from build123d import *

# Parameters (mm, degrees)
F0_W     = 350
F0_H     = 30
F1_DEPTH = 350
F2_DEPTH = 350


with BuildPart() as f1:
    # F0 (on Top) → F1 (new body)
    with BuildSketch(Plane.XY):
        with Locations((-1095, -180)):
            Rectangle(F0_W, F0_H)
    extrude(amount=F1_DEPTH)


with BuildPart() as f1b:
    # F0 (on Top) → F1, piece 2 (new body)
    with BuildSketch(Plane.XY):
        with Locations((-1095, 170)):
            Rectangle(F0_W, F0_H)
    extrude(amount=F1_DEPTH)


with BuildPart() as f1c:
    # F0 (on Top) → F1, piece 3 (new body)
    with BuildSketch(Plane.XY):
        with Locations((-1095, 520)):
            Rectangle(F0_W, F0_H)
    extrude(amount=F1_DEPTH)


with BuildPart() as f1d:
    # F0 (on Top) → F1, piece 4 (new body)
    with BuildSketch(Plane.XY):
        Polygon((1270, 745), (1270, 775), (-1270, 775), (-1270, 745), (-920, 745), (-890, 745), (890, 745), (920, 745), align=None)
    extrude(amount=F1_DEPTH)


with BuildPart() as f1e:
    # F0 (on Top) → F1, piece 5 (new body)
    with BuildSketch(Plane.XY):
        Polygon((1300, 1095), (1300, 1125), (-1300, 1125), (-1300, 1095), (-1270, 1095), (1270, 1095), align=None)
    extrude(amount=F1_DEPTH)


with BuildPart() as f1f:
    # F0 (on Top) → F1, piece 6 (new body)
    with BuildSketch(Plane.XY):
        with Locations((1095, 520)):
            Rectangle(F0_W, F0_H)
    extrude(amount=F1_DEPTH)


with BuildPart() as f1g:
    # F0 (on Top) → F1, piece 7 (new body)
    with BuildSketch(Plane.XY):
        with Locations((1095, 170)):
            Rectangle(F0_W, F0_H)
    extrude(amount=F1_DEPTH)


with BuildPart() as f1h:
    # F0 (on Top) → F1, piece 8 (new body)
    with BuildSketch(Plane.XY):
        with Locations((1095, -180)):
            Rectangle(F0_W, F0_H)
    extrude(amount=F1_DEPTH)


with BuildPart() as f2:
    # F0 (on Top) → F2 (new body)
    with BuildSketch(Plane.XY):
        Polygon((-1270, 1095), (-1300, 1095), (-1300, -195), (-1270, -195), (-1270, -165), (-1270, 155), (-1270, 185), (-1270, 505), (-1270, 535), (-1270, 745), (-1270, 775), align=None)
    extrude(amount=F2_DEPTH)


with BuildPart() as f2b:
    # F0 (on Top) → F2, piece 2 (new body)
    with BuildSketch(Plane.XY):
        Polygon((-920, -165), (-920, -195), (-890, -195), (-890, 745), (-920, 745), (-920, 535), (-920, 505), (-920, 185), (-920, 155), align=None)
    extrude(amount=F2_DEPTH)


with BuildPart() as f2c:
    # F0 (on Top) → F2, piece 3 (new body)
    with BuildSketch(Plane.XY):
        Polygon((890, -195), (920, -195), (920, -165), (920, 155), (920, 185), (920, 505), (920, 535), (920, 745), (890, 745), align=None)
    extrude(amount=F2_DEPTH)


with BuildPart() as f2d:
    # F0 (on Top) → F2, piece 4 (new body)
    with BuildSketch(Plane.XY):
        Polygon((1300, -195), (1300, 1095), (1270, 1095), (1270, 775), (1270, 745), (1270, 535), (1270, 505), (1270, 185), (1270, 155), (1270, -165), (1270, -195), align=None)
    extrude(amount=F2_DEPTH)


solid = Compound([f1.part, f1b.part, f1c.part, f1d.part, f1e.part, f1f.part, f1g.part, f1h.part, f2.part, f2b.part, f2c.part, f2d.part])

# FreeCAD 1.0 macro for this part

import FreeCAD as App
import Part
import Sketcher

doc = App.newDocument("Part")
body = doc.addObject("PartDesign::Body", "Body")

sketch1 = body.newObject("Sketcher::SketchObject", "Sketch")
sketch1.AttachmentSupport = (doc.getObject("XY_Plane"), [""])
sketch1.MapMode = "FlatFace"
sketch1.addGeometry([
    Part.LineSegment(App.Vector(-1270, -165, 0), App.Vector(-1270, -195, 0)),
    Part.LineSegment(App.Vector(-1270, -195, 0), App.Vector(-920, -195, 0)),
    Part.LineSegment(App.Vector(-920, -195, 0), App.Vector(-920, -165, 0)),
    Part.LineSegment(App.Vector(-920, -165, 0), App.Vector(-1270, -165, 0)),
], False)
sketch1.addConstraint([
    Sketcher.Constraint("Coincident", 0, 2, 1, 1),
    Sketcher.Constraint("Coincident", 1, 2, 2, 1),
    Sketcher.Constraint("Coincident", 2, 2, 3, 1),
    Sketcher.Constraint("Coincident", 3, 2, 0, 1),
    Sketcher.Constraint("Vertical", 0),
    Sketcher.Constraint("Horizontal", 1),
    Sketcher.Constraint("Vertical", 2),
    Sketcher.Constraint("Horizontal", 3),
    Sketcher.Constraint("DistanceX", 1, 1, 1, 2, 350.0),
    Sketcher.Constraint("DistanceY", 0, 2, 0, 1, 30.0),
    Sketcher.Constraint("DistanceX", 0, 2, -1, 1, 1270.0),
    Sketcher.Constraint("DistanceY", 0, 2, -1, 1, 195.0),
])
pad1 = body.newObject("PartDesign::Pad", "Pad")
pad1.Profile = sketch1
pad1.Length = 350
body2 = doc.addObject("PartDesign::Body", "Body001")

sketch2 = body2.newObject("Sketcher::SketchObject", "Sketch001")
sketch2.AttachmentSupport = (doc.getObject("XY_Plane001"), [""])
sketch2.MapMode = "FlatFace"
sketch2.addGeometry([
    Part.LineSegment(App.Vector(-1270, 185, 0), App.Vector(-1270, 155, 0)),
    Part.LineSegment(App.Vector(-1270, 155, 0), App.Vector(-920, 155, 0)),
    Part.LineSegment(App.Vector(-920, 155, 0), App.Vector(-920, 185, 0)),
    Part.LineSegment(App.Vector(-920, 185, 0), App.Vector(-1270, 185, 0)),
], False)
sketch2.addConstraint([
    Sketcher.Constraint("Coincident", 0, 2, 1, 1),
    Sketcher.Constraint("Coincident", 1, 2, 2, 1),
    Sketcher.Constraint("Coincident", 2, 2, 3, 1),
    Sketcher.Constraint("Coincident", 3, 2, 0, 1),
    Sketcher.Constraint("Vertical", 0),
    Sketcher.Constraint("Horizontal", 1),
    Sketcher.Constraint("Vertical", 2),
    Sketcher.Constraint("Horizontal", 3),
    Sketcher.Constraint("DistanceX", 1, 1, 1, 2, 350.0),
    Sketcher.Constraint("DistanceY", 0, 2, 0, 1, 30.0),
    Sketcher.Constraint("DistanceX", 0, 2, -1, 1, 1270.0),
    Sketcher.Constraint("DistanceY", -1, 1, 0, 2, 155.0),
])
pad2 = body2.newObject("PartDesign::Pad", "Pad001")
pad2.Profile = sketch2
pad2.Length = 350
body3 = doc.addObject("PartDesign::Body", "Body002")

sketch3 = body3.newObject("Sketcher::SketchObject", "Sketch002")
sketch3.AttachmentSupport = (doc.getObject("XY_Plane002"), [""])
sketch3.MapMode = "FlatFace"
sketch3.addGeometry([
    Part.LineSegment(App.Vector(-1270, 535, 0), App.Vector(-1270, 505, 0)),
    Part.LineSegment(App.Vector(-1270, 505, 0), App.Vector(-920, 505, 0)),
    Part.LineSegment(App.Vector(-920, 505, 0), App.Vector(-920, 535, 0)),
    Part.LineSegment(App.Vector(-920, 535, 0), App.Vector(-1270, 535, 0)),
], False)
sketch3.addConstraint([
    Sketcher.Constraint("Coincident", 0, 2, 1, 1),
    Sketcher.Constraint("Coincident", 1, 2, 2, 1),
    Sketcher.Constraint("Coincident", 2, 2, 3, 1),
    Sketcher.Constraint("Coincident", 3, 2, 0, 1),
    Sketcher.Constraint("Vertical", 0),
    Sketcher.Constraint("Horizontal", 1),
    Sketcher.Constraint("Vertical", 2),
    Sketcher.Constraint("Horizontal", 3),
    Sketcher.Constraint("DistanceX", 1, 1, 1, 2, 350.0),
    Sketcher.Constraint("DistanceY", 0, 2, 0, 1, 30.0),
    Sketcher.Constraint("DistanceX", 0, 2, -1, 1, 1270.0),
    Sketcher.Constraint("DistanceY", -1, 1, 0, 2, 505.0),
])
pad3 = body3.newObject("PartDesign::Pad", "Pad002")
pad3.Profile = sketch3
pad3.Length = 350
body4 = doc.addObject("PartDesign::Body", "Body003")

sketch4 = body4.newObject("Sketcher::SketchObject", "Sketch003")
sketch4.AttachmentSupport = (doc.getObject("XY_Plane003"), [""])
sketch4.MapMode = "FlatFace"
sketch4.addGeometry([
    Part.LineSegment(App.Vector(1270, 745, 0), App.Vector(1270, 775, 0)),
    Part.LineSegment(App.Vector(1270, 775, 0), App.Vector(-1270, 775, 0)),
    Part.LineSegment(App.Vector(-1270, 775, 0), App.Vector(-1270, 745, 0)),
    Part.LineSegment(App.Vector(-1270, 745, 0), App.Vector(1270, 745, 0)),
], False)
sketch4.addConstraint([
    Sketcher.Constraint("Coincident", 0, 2, 1, 1),
    Sketcher.Constraint("Coincident", 1, 2, 2, 1),
    Sketcher.Constraint("Coincident", 2, 2, 3, 1),
    Sketcher.Constraint("Coincident", 3, 2, 0, 1),
    Sketcher.Constraint("Vertical", 0),
    Sketcher.Constraint("Horizontal", 1),
    Sketcher.Constraint("Vertical", 2),
    Sketcher.Constraint("Horizontal", 3),
    Sketcher.Constraint("DistanceX", 1, 2, 1, 1, 2540.0),
    Sketcher.Constraint("DistanceY", 0, 1, 0, 2, 30.0),
    Sketcher.Constraint("DistanceX", -1, 1, 0, 2, 1270.0),
    Sketcher.Constraint("DistanceY", -1, 1, 0, 2, 775.0),
])
pad4 = body4.newObject("PartDesign::Pad", "Pad003")
pad4.Profile = sketch4
pad4.Length = 350
body5 = doc.addObject("PartDesign::Body", "Body004")

sketch5 = body5.newObject("Sketcher::SketchObject", "Sketch004")
sketch5.AttachmentSupport = (doc.getObject("XY_Plane004"), [""])
sketch5.MapMode = "FlatFace"
sketch5.addGeometry([
    Part.LineSegment(App.Vector(1300, 1095, 0), App.Vector(1300, 1125, 0)),
    Part.LineSegment(App.Vector(1300, 1125, 0), App.Vector(-1300, 1125, 0)),
    Part.LineSegment(App.Vector(-1300, 1125, 0), App.Vector(-1300, 1095, 0)),
    Part.LineSegment(App.Vector(-1300, 1095, 0), App.Vector(1300, 1095, 0)),
], False)
sketch5.addConstraint([
    Sketcher.Constraint("Coincident", 0, 2, 1, 1),
    Sketcher.Constraint("Coincident", 1, 2, 2, 1),
    Sketcher.Constraint("Coincident", 2, 2, 3, 1),
    Sketcher.Constraint("Coincident", 3, 2, 0, 1),
    Sketcher.Constraint("Vertical", 0),
    Sketcher.Constraint("Horizontal", 1),
    Sketcher.Constraint("Vertical", 2),
    Sketcher.Constraint("Horizontal", 3),
    Sketcher.Constraint("DistanceX", 1, 2, 1, 1, 2600.0),
    Sketcher.Constraint("DistanceY", 0, 1, 0, 2, 30.0),
    Sketcher.Constraint("DistanceX", -1, 1, 0, 2, 1300.0),
    Sketcher.Constraint("DistanceY", -1, 1, 0, 2, 1125.0),
])
pad5 = body5.newObject("PartDesign::Pad", "Pad004")
pad5.Profile = sketch5
pad5.Length = 350
body6 = doc.addObject("PartDesign::Body", "Body005")

sketch6 = body6.newObject("Sketcher::SketchObject", "Sketch005")
sketch6.AttachmentSupport = (doc.getObject("XY_Plane005"), [""])
sketch6.MapMode = "FlatFace"
sketch6.addGeometry([
    Part.LineSegment(App.Vector(920, 535, 0), App.Vector(920, 505, 0)),
    Part.LineSegment(App.Vector(920, 505, 0), App.Vector(1270, 505, 0)),
    Part.LineSegment(App.Vector(1270, 505, 0), App.Vector(1270, 535, 0)),
    Part.LineSegment(App.Vector(1270, 535, 0), App.Vector(920, 535, 0)),
], False)
sketch6.addConstraint([
    Sketcher.Constraint("Coincident", 0, 2, 1, 1),
    Sketcher.Constraint("Coincident", 1, 2, 2, 1),
    Sketcher.Constraint("Coincident", 2, 2, 3, 1),
    Sketcher.Constraint("Coincident", 3, 2, 0, 1),
    Sketcher.Constraint("Vertical", 0),
    Sketcher.Constraint("Horizontal", 1),
    Sketcher.Constraint("Vertical", 2),
    Sketcher.Constraint("Horizontal", 3),
    Sketcher.Constraint("DistanceX", 1, 1, 1, 2, 350.0),
    Sketcher.Constraint("DistanceY", 0, 2, 0, 1, 30.0),
    Sketcher.Constraint("DistanceX", -1, 1, 0, 2, 920.0),
    Sketcher.Constraint("DistanceY", -1, 1, 0, 2, 505.0),
])
pad6 = body6.newObject("PartDesign::Pad", "Pad005")
pad6.Profile = sketch6
pad6.Length = 350
body7 = doc.addObject("PartDesign::Body", "Body006")

sketch7 = body7.newObject("Sketcher::SketchObject", "Sketch006")
sketch7.AttachmentSupport = (doc.getObject("XY_Plane006"), [""])
sketch7.MapMode = "FlatFace"
sketch7.addGeometry([
    Part.LineSegment(App.Vector(920, 185, 0), App.Vector(920, 155, 0)),
    Part.LineSegment(App.Vector(920, 155, 0), App.Vector(1270, 155, 0)),
    Part.LineSegment(App.Vector(1270, 155, 0), App.Vector(1270, 185, 0)),
    Part.LineSegment(App.Vector(1270, 185, 0), App.Vector(920, 185, 0)),
], False)
sketch7.addConstraint([
    Sketcher.Constraint("Coincident", 0, 2, 1, 1),
    Sketcher.Constraint("Coincident", 1, 2, 2, 1),
    Sketcher.Constraint("Coincident", 2, 2, 3, 1),
    Sketcher.Constraint("Coincident", 3, 2, 0, 1),
    Sketcher.Constraint("Vertical", 0),
    Sketcher.Constraint("Horizontal", 1),
    Sketcher.Constraint("Vertical", 2),
    Sketcher.Constraint("Horizontal", 3),
    Sketcher.Constraint("DistanceX", 1, 1, 1, 2, 350.0),
    Sketcher.Constraint("DistanceY", 0, 2, 0, 1, 30.0),
    Sketcher.Constraint("DistanceX", -1, 1, 0, 2, 920.0),
    Sketcher.Constraint("DistanceY", -1, 1, 0, 2, 155.0),
])
pad7 = body7.newObject("PartDesign::Pad", "Pad006")
pad7.Profile = sketch7
pad7.Length = 350
body8 = doc.addObject("PartDesign::Body", "Body007")

sketch8 = body8.newObject("Sketcher::SketchObject", "Sketch007")
sketch8.AttachmentSupport = (doc.getObject("XY_Plane007"), [""])
sketch8.MapMode = "FlatFace"
sketch8.addGeometry([
    Part.LineSegment(App.Vector(920, -165, 0), App.Vector(920, -195, 0)),
    Part.LineSegment(App.Vector(920, -195, 0), App.Vector(1270, -195, 0)),
    Part.LineSegment(App.Vector(1270, -195, 0), App.Vector(1270, -165, 0)),
    Part.LineSegment(App.Vector(1270, -165, 0), App.Vector(920, -165, 0)),
], False)
sketch8.addConstraint([
    Sketcher.Constraint("Coincident", 0, 2, 1, 1),
    Sketcher.Constraint("Coincident", 1, 2, 2, 1),
    Sketcher.Constraint("Coincident", 2, 2, 3, 1),
    Sketcher.Constraint("Coincident", 3, 2, 0, 1),
    Sketcher.Constraint("Vertical", 0),
    Sketcher.Constraint("Horizontal", 1),
    Sketcher.Constraint("Vertical", 2),
    Sketcher.Constraint("Horizontal", 3),
    Sketcher.Constraint("DistanceX", 1, 1, 1, 2, 350.0),
    Sketcher.Constraint("DistanceY", 0, 2, 0, 1, 30.0),
    Sketcher.Constraint("DistanceX", -1, 1, 0, 2, 920.0),
    Sketcher.Constraint("DistanceY", 0, 2, -1, 1, 195.0),
])
pad8 = body8.newObject("PartDesign::Pad", "Pad007")
pad8.Profile = sketch8
pad8.Length = 350
body9 = doc.addObject("PartDesign::Body", "Body008")

sketch9 = body9.newObject("Sketcher::SketchObject", "Sketch008")
sketch9.AttachmentSupport = (doc.getObject("XY_Plane008"), [""])
sketch9.MapMode = "FlatFace"
sketch9.addGeometry([
    Part.LineSegment(App.Vector(-1270, 1095, 0), App.Vector(-1300, 1095, 0)),
    Part.LineSegment(App.Vector(-1300, 1095, 0), App.Vector(-1300, -195, 0)),
    Part.LineSegment(App.Vector(-1300, -195, 0), App.Vector(-1270, -195, 0)),
    Part.LineSegment(App.Vector(-1270, -195, 0), App.Vector(-1270, 1095, 0)),
], False)
sketch9.addConstraint([
    Sketcher.Constraint("Coincident", 0, 2, 1, 1),
    Sketcher.Constraint("Coincident", 1, 2, 2, 1),
    Sketcher.Constraint("Coincident", 2, 2, 3, 1),
    Sketcher.Constraint("Coincident", 3, 2, 0, 1),
    Sketcher.Constraint("Horizontal", 0),
    Sketcher.Constraint("Vertical", 1),
    Sketcher.Constraint("Horizontal", 2),
    Sketcher.Constraint("Vertical", 3),
    Sketcher.Constraint("DistanceX", 0, 2, 0, 1, 30.0),
    Sketcher.Constraint("DistanceY", 1, 2, 1, 1, 1290.0),
    Sketcher.Constraint("DistanceX", 0, 2, -1, 1, 1300.0),
    Sketcher.Constraint("DistanceY", -1, 1, 0, 2, 1095.0),
])
pad9 = body9.newObject("PartDesign::Pad", "Pad008")
pad9.Profile = sketch9
pad9.Length = 350
body10 = doc.addObject("PartDesign::Body", "Body009")

sketch10 = body10.newObject("Sketcher::SketchObject", "Sketch009")
sketch10.AttachmentSupport = (doc.getObject("XY_Plane009"), [""])
sketch10.MapMode = "FlatFace"
sketch10.addGeometry([
    Part.LineSegment(App.Vector(-920, -195, 0), App.Vector(-890, -195, 0)),
    Part.LineSegment(App.Vector(-890, -195, 0), App.Vector(-890, 745, 0)),
    Part.LineSegment(App.Vector(-890, 745, 0), App.Vector(-920, 745, 0)),
    Part.LineSegment(App.Vector(-920, 745, 0), App.Vector(-920, -195, 0)),
], False)
sketch10.addConstraint([
    Sketcher.Constraint("Coincident", 0, 2, 1, 1),
    Sketcher.Constraint("Coincident", 1, 2, 2, 1),
    Sketcher.Constraint("Coincident", 2, 2, 3, 1),
    Sketcher.Constraint("Coincident", 3, 2, 0, 1),
    Sketcher.Constraint("Horizontal", 0),
    Sketcher.Constraint("Vertical", 1),
    Sketcher.Constraint("Horizontal", 2),
    Sketcher.Constraint("Vertical", 3),
    Sketcher.Constraint("DistanceX", 0, 1, 0, 2, 30.0),
    Sketcher.Constraint("DistanceY", 1, 1, 1, 2, 940.0),
    Sketcher.Constraint("DistanceX", 0, 2, -1, 1, 890.0),
    Sketcher.Constraint("DistanceY", 0, 2, -1, 1, 195.0),
])
pad10 = body10.newObject("PartDesign::Pad", "Pad009")
pad10.Profile = sketch10
pad10.Length = 350
body11 = doc.addObject("PartDesign::Body", "Body010")

sketch11 = body11.newObject("Sketcher::SketchObject", "Sketch010")
sketch11.AttachmentSupport = (doc.getObject("XY_Plane010"), [""])
sketch11.MapMode = "FlatFace"
sketch11.addGeometry([
    Part.LineSegment(App.Vector(890, -195, 0), App.Vector(920, -195, 0)),
    Part.LineSegment(App.Vector(920, -195, 0), App.Vector(920, 745, 0)),
    Part.LineSegment(App.Vector(920, 745, 0), App.Vector(890, 745, 0)),
    Part.LineSegment(App.Vector(890, 745, 0), App.Vector(890, -195, 0)),
], False)
sketch11.addConstraint([
    Sketcher.Constraint("Coincident", 0, 2, 1, 1),
    Sketcher.Constraint("Coincident", 1, 2, 2, 1),
    Sketcher.Constraint("Coincident", 2, 2, 3, 1),
    Sketcher.Constraint("Coincident", 3, 2, 0, 1),
    Sketcher.Constraint("Horizontal", 0),
    Sketcher.Constraint("Vertical", 1),
    Sketcher.Constraint("Horizontal", 2),
    Sketcher.Constraint("Vertical", 3),
    Sketcher.Constraint("DistanceX", 0, 1, 0, 2, 30.0),
    Sketcher.Constraint("DistanceY", 1, 1, 1, 2, 940.0),
    Sketcher.Constraint("DistanceX", -1, 1, 0, 2, 920.0),
    Sketcher.Constraint("DistanceY", 0, 2, -1, 1, 195.0),
])
pad11 = body11.newObject("PartDesign::Pad", "Pad010")
pad11.Profile = sketch11
pad11.Length = 350
body12 = doc.addObject("PartDesign::Body", "Body011")

sketch12 = body12.newObject("Sketcher::SketchObject", "Sketch011")
sketch12.AttachmentSupport = (doc.getObject("XY_Plane011"), [""])
sketch12.MapMode = "FlatFace"
sketch12.addGeometry([
    Part.LineSegment(App.Vector(1300, -195, 0), App.Vector(1300, 1095, 0)),
    Part.LineSegment(App.Vector(1300, 1095, 0), App.Vector(1270, 1095, 0)),
    Part.LineSegment(App.Vector(1270, 1095, 0), App.Vector(1270, -195, 0)),
    Part.LineSegment(App.Vector(1270, -195, 0), App.Vector(1300, -195, 0)),
], False)
sketch12.addConstraint([
    Sketcher.Constraint("Coincident", 0, 2, 1, 1),
    Sketcher.Constraint("Coincident", 1, 2, 2, 1),
    Sketcher.Constraint("Coincident", 2, 2, 3, 1),
    Sketcher.Constraint("Coincident", 3, 2, 0, 1),
    Sketcher.Constraint("Vertical", 0),
    Sketcher.Constraint("Horizontal", 1),
    Sketcher.Constraint("Vertical", 2),
    Sketcher.Constraint("Horizontal", 3),
    Sketcher.Constraint("DistanceX", 1, 2, 1, 1, 30.0),
    Sketcher.Constraint("DistanceY", 0, 1, 0, 2, 1290.0),
    Sketcher.Constraint("DistanceX", -1, 1, 0, 2, 1300.0),
    Sketcher.Constraint("DistanceY", -1, 1, 0, 2, 1095.0),
])
pad12 = body12.newObject("PartDesign::Pad", "Pad011")
pad12.Profile = sketch12
pad12.Length = 350

doc.recompute()
